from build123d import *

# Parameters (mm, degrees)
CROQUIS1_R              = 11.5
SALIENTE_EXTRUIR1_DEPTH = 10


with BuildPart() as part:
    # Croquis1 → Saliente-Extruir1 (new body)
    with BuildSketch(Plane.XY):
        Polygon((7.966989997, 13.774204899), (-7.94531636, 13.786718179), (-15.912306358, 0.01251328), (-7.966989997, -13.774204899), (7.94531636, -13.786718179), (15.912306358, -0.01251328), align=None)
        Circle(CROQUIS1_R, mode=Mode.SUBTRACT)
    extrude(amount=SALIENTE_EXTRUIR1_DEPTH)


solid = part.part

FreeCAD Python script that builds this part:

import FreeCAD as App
import Part
import Sketcher
Q = App.Units.Quantity


def add_polygon(sketch, points):
    """Adds a closed chain of lines whose ends are joined by coincident constraints."""
    first, n = sketch.GeometryCount, len(points)
    for a, b in zip(points, points[1:] + points[:1]):
        sketch.addGeometry(Part.LineSegment(App.Vector(*a, 0), App.Vector(*b, 0)), False)
    for i in range(n):
        sketch.addConstraint(Sketcher.Constraint("Coincident", first + i, 2, first + (i + 1) % n, 1))

doc = App.newDocument("Part")
params = doc.addObject("Spreadsheet::Sheet", "Params")
for row, (alias, value) in enumerate([
    ("sketch1_diameter", "23 mm"),
    ("pad1_length", "10 mm"),
], start=1):
    params.set(f"A{row}", alias)
    params.set(f"B{row}", "=" + value)
    params.setAlias(f"B{row}", alias)

body = doc.addObject("PartDesign::Body", "Body")

# Sketch on XY plane
sketch1 = body.newObject("Sketcher::SketchObject", "Sketch")
sketch1.AttachmentSupport = (doc.getObject("XY_Plane"), [""])
sketch1.MapMode = "FlatFace"
add_polygon(sketch1, [(8, 14), (-8, 14), (-16, 0), (-8, -14), (8, -14), (16, 0)])  # lines 0-5
sketch1.addGeometry(Part.Circle(App.Vector(0, 0, 0), App.Vector(0, 0, 1), 12), False)  # 6
sketch1.addConstraint([
    Sketcher.Constraint("Coincident", 6, 3, -1, 1),
    Sketcher.Constraint("Symmetric", 0, 2, 3, 2, -1, 1),
    Sketcher.Constraint("Symmetric", 1, 2, 4, 2, -1, 1),
    Sketcher.Constraint("Symmetric", 2, 2, 5, 2, -1, 1),
    Sketcher.Constraint("Equal", 0, 1),
    Sketcher.Constraint("Equal", 1, 2),
    Sketcher.Constraint("Diameter", 6, Q("23 mm")),
    Sketcher.Constraint("Distance", 0, Q("15.912311 mm")),
    Sketcher.Constraint("DistanceY", -1, 1, 0, 2, Q("13.786718 mm")),
    Sketcher.Constraint("DistanceX", 2, 2, -1, 1, Q("7.96699 mm")),
    Sketcher.Constraint("DistanceX", 1, 2, 0, 2, Q("7.96699 mm")),
])
sketch1.setExpression("Constraints[12]", "Params.sketch1_diameter")
pad1 = body.newObject("PartDesign::Pad", "Pad")
pad1.Profile = sketch1
pad1.setExpression("Length", "Params.pad1_length")

doc.recompute()
